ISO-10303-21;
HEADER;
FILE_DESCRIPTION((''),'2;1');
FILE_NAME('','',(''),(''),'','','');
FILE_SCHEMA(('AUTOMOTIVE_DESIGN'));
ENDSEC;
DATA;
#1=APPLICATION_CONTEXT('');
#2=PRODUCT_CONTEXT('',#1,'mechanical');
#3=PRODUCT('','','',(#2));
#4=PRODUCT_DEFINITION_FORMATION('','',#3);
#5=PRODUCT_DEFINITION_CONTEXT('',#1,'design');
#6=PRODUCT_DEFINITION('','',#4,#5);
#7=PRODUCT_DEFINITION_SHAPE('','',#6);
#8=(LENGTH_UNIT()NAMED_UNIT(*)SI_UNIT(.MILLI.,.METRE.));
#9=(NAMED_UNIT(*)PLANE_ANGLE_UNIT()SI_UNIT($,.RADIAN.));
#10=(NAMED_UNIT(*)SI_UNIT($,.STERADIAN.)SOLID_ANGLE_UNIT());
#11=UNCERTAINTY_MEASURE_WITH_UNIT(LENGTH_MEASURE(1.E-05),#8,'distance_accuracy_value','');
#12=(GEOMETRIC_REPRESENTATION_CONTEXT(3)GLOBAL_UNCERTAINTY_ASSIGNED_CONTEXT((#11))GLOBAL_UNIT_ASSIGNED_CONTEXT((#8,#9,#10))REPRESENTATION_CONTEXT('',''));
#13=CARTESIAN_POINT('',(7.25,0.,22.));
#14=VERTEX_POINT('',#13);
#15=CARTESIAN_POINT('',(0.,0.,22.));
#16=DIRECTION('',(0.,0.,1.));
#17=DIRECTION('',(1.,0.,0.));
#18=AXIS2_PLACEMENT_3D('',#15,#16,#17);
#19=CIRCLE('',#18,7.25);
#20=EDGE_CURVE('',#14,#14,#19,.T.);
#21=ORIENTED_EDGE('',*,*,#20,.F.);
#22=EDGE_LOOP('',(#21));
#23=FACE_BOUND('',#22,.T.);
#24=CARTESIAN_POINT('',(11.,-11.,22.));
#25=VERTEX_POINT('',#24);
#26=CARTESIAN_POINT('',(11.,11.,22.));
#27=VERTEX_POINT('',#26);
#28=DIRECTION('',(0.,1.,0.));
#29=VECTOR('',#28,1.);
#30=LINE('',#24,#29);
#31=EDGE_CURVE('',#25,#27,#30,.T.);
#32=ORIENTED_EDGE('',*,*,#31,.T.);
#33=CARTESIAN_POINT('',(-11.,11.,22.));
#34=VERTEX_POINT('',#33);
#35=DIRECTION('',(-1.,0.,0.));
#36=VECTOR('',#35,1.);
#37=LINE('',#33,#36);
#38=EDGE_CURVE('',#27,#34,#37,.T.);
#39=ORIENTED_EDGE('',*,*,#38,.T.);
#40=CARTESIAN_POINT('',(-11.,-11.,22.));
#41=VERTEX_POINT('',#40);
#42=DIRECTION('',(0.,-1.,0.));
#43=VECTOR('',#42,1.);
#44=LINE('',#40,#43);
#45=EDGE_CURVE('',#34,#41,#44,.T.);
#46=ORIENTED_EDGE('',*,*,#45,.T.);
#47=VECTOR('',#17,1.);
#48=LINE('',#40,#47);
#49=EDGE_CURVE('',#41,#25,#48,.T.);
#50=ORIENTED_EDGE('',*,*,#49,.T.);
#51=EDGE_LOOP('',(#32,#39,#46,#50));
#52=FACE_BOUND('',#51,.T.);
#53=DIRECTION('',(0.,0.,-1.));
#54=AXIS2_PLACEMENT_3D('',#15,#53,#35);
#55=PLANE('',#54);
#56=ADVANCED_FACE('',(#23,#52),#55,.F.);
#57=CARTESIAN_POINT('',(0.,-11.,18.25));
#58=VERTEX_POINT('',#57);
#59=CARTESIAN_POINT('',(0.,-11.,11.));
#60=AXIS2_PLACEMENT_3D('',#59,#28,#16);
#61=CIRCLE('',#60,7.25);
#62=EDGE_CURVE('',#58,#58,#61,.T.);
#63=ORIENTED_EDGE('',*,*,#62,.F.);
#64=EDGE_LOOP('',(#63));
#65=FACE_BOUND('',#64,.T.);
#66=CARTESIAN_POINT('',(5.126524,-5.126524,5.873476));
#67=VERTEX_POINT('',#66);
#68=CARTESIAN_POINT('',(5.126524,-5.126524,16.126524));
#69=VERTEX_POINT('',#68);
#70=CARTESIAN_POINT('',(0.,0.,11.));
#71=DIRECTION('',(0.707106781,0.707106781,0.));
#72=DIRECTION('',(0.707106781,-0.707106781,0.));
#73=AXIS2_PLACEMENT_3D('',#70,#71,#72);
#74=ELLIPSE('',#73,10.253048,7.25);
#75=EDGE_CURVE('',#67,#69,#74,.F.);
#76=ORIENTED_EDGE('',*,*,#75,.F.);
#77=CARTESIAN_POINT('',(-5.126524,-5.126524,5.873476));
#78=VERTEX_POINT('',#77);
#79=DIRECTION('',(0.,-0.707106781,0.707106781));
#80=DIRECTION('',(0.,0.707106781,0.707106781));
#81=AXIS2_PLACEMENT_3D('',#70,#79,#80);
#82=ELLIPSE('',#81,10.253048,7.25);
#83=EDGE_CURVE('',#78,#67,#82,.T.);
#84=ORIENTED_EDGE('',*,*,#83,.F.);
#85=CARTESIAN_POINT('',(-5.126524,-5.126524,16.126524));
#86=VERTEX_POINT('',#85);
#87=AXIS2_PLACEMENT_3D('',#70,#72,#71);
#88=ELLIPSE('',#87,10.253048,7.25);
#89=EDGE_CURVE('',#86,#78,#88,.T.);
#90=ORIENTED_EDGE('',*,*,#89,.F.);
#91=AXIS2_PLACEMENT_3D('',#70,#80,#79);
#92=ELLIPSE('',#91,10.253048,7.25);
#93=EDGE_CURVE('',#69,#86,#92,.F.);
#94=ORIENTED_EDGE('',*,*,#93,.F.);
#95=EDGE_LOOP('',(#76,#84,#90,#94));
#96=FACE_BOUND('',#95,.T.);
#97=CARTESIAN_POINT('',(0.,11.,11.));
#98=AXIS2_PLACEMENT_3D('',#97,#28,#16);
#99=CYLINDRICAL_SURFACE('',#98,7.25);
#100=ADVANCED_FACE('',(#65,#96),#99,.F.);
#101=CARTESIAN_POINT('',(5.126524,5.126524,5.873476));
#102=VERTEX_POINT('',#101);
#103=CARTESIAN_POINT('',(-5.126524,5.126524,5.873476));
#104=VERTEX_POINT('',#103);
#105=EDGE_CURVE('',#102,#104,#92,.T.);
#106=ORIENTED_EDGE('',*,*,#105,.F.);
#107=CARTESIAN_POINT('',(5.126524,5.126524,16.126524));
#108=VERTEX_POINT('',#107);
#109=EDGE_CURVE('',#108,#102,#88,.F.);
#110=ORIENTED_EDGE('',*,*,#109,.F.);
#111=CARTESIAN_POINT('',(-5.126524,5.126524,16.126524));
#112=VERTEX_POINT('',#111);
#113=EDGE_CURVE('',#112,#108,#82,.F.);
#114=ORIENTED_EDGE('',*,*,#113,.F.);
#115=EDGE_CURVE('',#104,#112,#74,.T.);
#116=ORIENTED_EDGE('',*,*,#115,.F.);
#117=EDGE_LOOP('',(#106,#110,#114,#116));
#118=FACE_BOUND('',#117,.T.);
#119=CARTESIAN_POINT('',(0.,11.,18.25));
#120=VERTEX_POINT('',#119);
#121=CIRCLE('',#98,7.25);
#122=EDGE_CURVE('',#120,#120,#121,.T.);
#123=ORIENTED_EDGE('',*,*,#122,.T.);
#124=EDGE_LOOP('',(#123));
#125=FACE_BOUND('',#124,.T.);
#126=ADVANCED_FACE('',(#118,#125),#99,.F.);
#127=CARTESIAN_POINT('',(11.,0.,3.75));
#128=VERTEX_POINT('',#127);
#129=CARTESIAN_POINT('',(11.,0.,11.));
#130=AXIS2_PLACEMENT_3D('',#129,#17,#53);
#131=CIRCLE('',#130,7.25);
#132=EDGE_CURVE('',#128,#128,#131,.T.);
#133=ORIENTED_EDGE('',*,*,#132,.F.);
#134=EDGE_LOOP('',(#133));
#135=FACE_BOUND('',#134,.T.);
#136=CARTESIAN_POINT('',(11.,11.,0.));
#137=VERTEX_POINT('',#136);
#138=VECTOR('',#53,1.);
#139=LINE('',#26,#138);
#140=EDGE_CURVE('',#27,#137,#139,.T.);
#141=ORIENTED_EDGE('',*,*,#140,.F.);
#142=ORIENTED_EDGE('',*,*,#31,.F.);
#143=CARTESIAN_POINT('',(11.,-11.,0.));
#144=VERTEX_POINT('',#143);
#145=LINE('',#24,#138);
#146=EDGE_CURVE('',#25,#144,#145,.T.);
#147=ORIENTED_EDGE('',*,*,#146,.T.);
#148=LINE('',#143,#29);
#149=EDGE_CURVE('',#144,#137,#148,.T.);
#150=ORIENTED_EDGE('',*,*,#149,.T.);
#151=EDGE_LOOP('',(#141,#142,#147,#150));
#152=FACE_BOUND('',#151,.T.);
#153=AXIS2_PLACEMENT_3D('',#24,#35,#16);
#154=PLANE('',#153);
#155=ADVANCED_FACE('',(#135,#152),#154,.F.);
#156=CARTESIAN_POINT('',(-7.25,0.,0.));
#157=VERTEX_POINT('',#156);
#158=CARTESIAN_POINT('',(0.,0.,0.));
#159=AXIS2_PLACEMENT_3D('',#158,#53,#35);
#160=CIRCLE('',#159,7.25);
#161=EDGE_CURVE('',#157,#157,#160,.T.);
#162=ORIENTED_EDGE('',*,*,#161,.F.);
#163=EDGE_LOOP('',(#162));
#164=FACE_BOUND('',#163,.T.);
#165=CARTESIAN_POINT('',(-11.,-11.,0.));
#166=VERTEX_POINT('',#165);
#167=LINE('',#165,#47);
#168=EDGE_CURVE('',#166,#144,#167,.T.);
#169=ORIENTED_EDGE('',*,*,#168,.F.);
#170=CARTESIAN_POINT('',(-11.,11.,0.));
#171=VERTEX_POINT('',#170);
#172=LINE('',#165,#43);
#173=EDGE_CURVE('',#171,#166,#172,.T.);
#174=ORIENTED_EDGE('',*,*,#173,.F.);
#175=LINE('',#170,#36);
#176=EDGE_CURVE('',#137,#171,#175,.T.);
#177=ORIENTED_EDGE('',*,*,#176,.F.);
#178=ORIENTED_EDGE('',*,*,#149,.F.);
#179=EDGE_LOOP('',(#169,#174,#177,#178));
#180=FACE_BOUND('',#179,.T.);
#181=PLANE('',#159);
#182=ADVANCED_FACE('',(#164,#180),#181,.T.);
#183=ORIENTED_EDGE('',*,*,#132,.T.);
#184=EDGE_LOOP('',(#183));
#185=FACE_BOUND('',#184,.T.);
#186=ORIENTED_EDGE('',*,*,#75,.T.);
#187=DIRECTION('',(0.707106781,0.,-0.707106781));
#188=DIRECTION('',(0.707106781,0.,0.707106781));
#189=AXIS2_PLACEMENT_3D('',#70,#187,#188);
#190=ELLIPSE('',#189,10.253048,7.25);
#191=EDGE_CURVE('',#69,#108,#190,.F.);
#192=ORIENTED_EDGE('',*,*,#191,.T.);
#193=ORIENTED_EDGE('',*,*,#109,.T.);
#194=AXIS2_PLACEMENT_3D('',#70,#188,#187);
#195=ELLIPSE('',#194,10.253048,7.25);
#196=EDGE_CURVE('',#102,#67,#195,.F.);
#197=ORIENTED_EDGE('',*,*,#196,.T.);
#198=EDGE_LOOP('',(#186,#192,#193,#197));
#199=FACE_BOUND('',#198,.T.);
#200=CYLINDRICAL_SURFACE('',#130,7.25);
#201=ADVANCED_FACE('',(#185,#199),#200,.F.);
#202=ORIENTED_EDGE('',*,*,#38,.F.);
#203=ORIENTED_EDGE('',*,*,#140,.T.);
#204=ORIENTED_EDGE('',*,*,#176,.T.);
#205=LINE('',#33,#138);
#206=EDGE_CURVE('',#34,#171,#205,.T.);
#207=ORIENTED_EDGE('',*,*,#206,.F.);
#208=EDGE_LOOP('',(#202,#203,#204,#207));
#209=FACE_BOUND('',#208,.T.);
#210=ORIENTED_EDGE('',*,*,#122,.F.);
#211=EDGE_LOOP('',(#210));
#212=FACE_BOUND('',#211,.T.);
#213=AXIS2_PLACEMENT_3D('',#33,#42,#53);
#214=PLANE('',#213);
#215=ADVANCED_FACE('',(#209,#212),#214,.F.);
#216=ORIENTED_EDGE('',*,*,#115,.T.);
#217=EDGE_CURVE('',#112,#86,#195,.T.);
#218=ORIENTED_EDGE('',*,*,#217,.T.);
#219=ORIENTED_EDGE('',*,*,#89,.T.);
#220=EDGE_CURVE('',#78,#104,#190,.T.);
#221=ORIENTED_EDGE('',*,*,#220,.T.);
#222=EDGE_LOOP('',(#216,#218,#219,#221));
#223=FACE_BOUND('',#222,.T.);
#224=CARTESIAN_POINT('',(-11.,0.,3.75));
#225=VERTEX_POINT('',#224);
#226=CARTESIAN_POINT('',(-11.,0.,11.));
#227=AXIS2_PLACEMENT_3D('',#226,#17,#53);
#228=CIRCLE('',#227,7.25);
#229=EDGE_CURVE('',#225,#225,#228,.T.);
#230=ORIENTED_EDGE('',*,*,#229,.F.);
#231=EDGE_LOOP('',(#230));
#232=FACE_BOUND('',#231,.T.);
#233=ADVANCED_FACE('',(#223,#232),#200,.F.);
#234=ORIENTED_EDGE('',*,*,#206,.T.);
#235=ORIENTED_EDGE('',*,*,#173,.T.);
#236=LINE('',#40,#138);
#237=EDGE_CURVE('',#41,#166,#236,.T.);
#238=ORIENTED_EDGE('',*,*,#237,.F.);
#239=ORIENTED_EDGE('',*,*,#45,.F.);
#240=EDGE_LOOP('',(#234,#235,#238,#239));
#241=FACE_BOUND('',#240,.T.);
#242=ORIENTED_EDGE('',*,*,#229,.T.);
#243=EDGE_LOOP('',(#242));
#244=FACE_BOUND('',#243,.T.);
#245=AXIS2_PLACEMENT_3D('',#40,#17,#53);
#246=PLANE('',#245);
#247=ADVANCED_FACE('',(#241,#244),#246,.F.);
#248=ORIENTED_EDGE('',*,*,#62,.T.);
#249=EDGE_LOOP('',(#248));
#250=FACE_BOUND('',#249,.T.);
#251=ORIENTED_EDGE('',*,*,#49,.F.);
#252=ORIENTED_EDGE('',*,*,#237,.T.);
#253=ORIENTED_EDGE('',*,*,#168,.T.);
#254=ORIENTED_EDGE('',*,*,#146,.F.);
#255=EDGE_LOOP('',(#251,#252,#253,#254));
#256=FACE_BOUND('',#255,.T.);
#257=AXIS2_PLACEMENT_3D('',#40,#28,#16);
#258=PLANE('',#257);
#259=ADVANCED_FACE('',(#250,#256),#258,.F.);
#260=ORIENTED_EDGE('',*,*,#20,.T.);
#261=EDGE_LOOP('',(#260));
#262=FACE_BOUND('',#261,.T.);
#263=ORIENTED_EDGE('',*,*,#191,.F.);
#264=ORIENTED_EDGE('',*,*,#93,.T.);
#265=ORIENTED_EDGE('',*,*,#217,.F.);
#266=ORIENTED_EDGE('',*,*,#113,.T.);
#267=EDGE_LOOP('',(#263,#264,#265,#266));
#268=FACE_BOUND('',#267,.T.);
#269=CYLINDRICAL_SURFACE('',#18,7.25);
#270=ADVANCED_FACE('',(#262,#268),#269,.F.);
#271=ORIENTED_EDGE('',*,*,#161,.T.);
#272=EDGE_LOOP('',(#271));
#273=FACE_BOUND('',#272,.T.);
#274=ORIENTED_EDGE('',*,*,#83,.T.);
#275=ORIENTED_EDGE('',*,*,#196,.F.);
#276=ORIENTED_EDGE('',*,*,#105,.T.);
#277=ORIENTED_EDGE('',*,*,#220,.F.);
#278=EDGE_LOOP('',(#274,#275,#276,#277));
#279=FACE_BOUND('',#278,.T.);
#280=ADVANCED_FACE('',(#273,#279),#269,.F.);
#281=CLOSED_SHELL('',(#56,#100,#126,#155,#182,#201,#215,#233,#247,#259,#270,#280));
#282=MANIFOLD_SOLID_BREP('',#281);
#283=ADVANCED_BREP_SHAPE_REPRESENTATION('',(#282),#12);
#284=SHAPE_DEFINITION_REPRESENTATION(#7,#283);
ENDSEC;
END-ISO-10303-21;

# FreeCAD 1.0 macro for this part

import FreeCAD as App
import Part
import Sketcher
Q = App.Units.Quantity

doc = App.newDocument("Part")
body = doc.addObject("PartDesign::Body", "Body")

# Sketch on XY plane
sketch1 = doc.addObject("Sketcher::SketchObject", "Sketch")
body.addObject(sketch1)
sketch1.AttachmentSupport = (doc.XY_Plane, [""])
sketch1.MapMode = "FlatFace"
sketch1.addGeometry([
    Part.LineSegment(App.Vector(-11, 11, 0), App.Vector(-11, -11, 0)),
    Part.LineSegment(App.Vector(-11, -11, 0), App.Vector(11, -11, 0)),
    Part.LineSegment(App.Vector(11, -11, 0), App.Vector(11, 11, 0)),
    Part.LineSegment(App.Vector(11, 11, 0), App.Vector(-11, 11, 0)),
], False)
sketch1.addConstraint([
    Sketcher.Constraint("Coincident", 0, 2, 1, 1),
    Sketcher.Constraint("Coincident", 1, 2, 2, 1),
    Sketcher.Constraint("Coincident", 2, 2, 3, 1),
    Sketcher.Constraint("Coincident", 3, 2, 0, 1),
    Sketcher.Constraint("Vertical", 0),
    Sketcher.Constraint("Horizontal", 1),
    Sketcher.Constraint("Vertical", 2),
    Sketcher.Constraint("Horizontal", 3),
    Sketcher.Constraint("Symmetric", 0, 2, 2, 2, -1, 1),
    Sketcher.Constraint("Equal", 3, 0),
    Sketcher.Constraint("DistanceX", 1, 1, 1, 2, Q("22 mm")),
])
pad1 = doc.addObject("PartDesign::Pad", "Pad")
body.addObject(pad1)
pad1.Profile = sketch1
pad1.Length = 22

# Sketch on XZ plane
sketch2 = doc.addObject("Sketcher::SketchObject", "Sketch001")
body.addObject(sketch2)
sketch2.AttachmentSupport = (doc.XZ_Plane, [""])
sketch2.MapMode = "FlatFace"
sketch2.AttachmentOffset = App.Placement(App.Vector(0, 0, -11), App.Rotation())
sketch2.addGeometry(Part.Circle(App.Vector(0, 11, 0), App.Vector(0, 0, 1), 7), False)
sketch2.addConstraint([
    Sketcher.Constraint("PointOnObject", 0, 3, -2),
    Sketcher.Constraint("Diameter", 0, Q("14.5 mm")),
    Sketcher.Constraint("DistanceY", -1, 1, 0, 3, Q("11 mm")),
])
doc.recompute()
hole = doc.addObject("PartDesign::Hole", "Hole")
body.addObject(hole)
hole.Profile = sketch2
hole.ThreadType = "None"
hole.Diameter = 14.5
hole.DepthType = "ThroughAll"
hole.Reversed = True

# Sketch on XY plane
sketch3 = doc.addObject("Sketcher::SketchObject", "Sketch002")
body.addObject(sketch3)
sketch3.AttachmentSupport = (doc.XY_Plane, [""])
sketch3.MapMode = "FlatFace"
sketch3.AttachmentOffset = App.Placement(App.Vector(0, 0, 22), App.Rotation())
sketch3.addGeometry(Part.Circle(App.Vector(0, 0, 0), App.Vector(0, 0, 1), 7), False)
sketch3.addConstraint([
    Sketcher.Constraint("Coincident", 0, 3, -1, 1),
    Sketcher.Constraint("Diameter", 0, Q("14.5 mm")),
])
doc.recompute()
hole2 = doc.addObject("PartDesign::Hole", "Hole001")
body.addObject(hole2)
hole2.Profile = sketch3
hole2.ThreadType = "None"
hole2.Diameter = 14.5
hole2.DepthType = "ThroughAll"

# Sketch on YZ plane
sketch4 = doc.addObject("Sketcher::SketchObject", "Sketch003")
body.addObject(sketch4)
sketch4.AttachmentSupport = (doc.YZ_Plane, [""])
sketch4.MapMode = "FlatFace"
sketch4.AttachmentOffset = App.Placement(App.Vector(0, 0, 11), App.Rotation())
sketch4.addGeometry(Part.Circle(App.Vector(0, 11, 0), App.Vector(0, 0, 1), 7), False)
sketch4.addConstraint([
    Sketcher.Constraint("PointOnObject", 0, 3, -2),
    Sketcher.Constraint("Diameter", 0, Q("14.5 mm")),
    Sketcher.Constraint("DistanceY", -1, 1, 0, 3, Q("11 mm")),
])
doc.recompute()
hole3 = doc.addObject("PartDesign::Hole", "Hole002")
body.addObject(hole3)
hole3.Profile = sketch4
hole3.ThreadType = "None"
hole3.Diameter = 14.5
hole3.DepthType = "ThroughAll"

doc.recompute()
